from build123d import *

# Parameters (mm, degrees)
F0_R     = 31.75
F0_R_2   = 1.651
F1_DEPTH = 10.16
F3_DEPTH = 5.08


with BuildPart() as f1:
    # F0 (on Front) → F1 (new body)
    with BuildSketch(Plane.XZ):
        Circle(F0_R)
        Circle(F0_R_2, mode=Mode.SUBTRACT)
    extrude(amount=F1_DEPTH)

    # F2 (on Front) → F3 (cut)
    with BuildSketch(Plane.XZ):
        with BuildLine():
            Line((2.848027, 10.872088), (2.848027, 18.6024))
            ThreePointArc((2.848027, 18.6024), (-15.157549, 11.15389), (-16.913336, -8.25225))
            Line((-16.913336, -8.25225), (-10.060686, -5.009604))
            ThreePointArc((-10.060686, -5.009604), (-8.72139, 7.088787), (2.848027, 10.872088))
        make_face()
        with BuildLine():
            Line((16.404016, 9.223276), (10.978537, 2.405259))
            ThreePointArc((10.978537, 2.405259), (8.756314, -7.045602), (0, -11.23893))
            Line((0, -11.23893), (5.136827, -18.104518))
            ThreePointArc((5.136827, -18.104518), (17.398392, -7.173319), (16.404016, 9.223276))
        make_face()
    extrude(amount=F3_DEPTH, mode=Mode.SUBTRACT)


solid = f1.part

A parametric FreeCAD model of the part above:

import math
import FreeCAD as App
import Part
import Sketcher
Q = App.Units.Quantity

doc = App.newDocument("Part")
params = doc.addObject("Spreadsheet::Sheet", "Params")
for row, (alias, value) in enumerate([
    ("sketch1_diameter", "2.5 in"),
    ("sketch1_diameter2", "0.13 in"),
    ("pad1_length", "0.4 in"),
    ("pocket1_length", "0.2 in"),
], start=1):
    params.set(f"A{row}", alias)
    params.set(f"B{row}", "=" + value)
    params.setAlias(f"B{row}", alias)

body = doc.addObject("PartDesign::Body", "Body")

# Sketch on XZ plane
sketch1 = body.newObject("Sketcher::SketchObject", "Sketch")
sketch1.AttachmentSupport = (doc.getObject("XZ_Plane"), [""])
sketch1.MapMode = "FlatFace"
sketch1.addGeometry(Part.Circle(App.Vector(0, 0, 0), App.Vector(0, 0, 1), 31.8), False)
sketch1.addGeometry(Part.Circle(App.Vector(0, 0, 0), App.Vector(0, 0, 1), 1.7), False)
sketch1.addConstraint(Sketcher.Constraint("Coincident", 0, 3, -1, 1))
sketch1.addConstraint(Sketcher.Constraint("Coincident", 1, 3, -1, 1))
sketch1.addConstraint(Sketcher.Constraint("Diameter", 0, Q("2.5 in")))
sketch1.addConstraint(Sketcher.Constraint("Diameter", 1, Q("0.13 in")))
sketch1.setExpression("Constraints[2]", "Params.sketch1_diameter")
sketch1.setExpression("Constraints[3]", "Params.sketch1_diameter2")
pad1 = body.newObject("PartDesign::Pad", "Pad")
pad1.Profile = sketch1
pad1.setExpression("Length", "Params.pad1_length")

# Sketch on XZ plane
sketch2 = body.newObject("Sketcher::SketchObject", "Sketch001")
sketch2.AttachmentSupport = (doc.getObject("XZ_Plane"), [""])
sketch2.MapMode = "FlatFace"
sketch2.addGeometry(Part.LineSegment(App.Vector(3, 11, 0), App.Vector(3, 19, 0)), False)
sketch2.addGeometry(Part.ArcOfCircle(Part.Circle(App.Vector(0, 0, 0), App.Vector(0, 0, 1), 19), math.radians(81), math.radians(206)), False)
sketch2.addGeometry(Part.LineSegment(App.Vector(-17, -8, 0), App.Vector(-10, -5, 0)), False)
sketch2.addGeometry(Part.ArcOfCircle(Part.Circle(App.Vector(0, 0, 0), App.Vector(0, 0, 1), 11), math.radians(75), math.radians(206)), False)
sketch2.addGeometry(Part.LineSegment(App.Vector(16, 9, 0), App.Vector(11, 2, 0)), False)
sketch2.addGeometry(Part.ArcOfCircle(Part.Circle(App.Vector(0, 0, 0), App.Vector(0, 0, 1), 11), math.radians(-90), math.radians(12)), False)
sketch2.addGeometry(Part.LineSegment(App.Vector(0, -11, 0), App.Vector(5, -18, 0)), False)
sketch2.addGeometry(Part.ArcOfCircle(Part.Circle(App.Vector(0, 0, 0), App.Vector(0, 0, 1), 19), math.radians(-74), math.radians(29)), False)
sketch2.addConstraint(Sketcher.Constraint("Coincident", 0, 2, 1, 1))
sketch2.addConstraint(Sketcher.Constraint("Coincident", 1, 2, 2, 1))
sketch2.addConstraint(Sketcher.Constraint("Coincident", 2, 2, 3, 2))
sketch2.addConstraint(Sketcher.Constraint("Coincident", 3, 1, 0, 1))
sketch2.addConstraint(Sketcher.Constraint("Coincident", 4, 2, 5, 2))
sketch2.addConstraint(Sketcher.Constraint("Coincident", 5, 1, 6, 1))
sketch2.addConstraint(Sketcher.Constraint("Coincident", 6, 2, 7, 1))
sketch2.addConstraint(Sketcher.Constraint("Coincident", 7, 2, 4, 1))
sketch2.addConstraint(Sketcher.Constraint("Vertical", 0))
sketch2.addConstraint(Sketcher.Constraint("Coincident", 1, 3, -1, 1))
sketch2.addConstraint(Sketcher.Constraint("Coincident", 3, 3, -1, 1))
sketch2.addConstraint(Sketcher.Constraint("Coincident", 5, 3, -1, 1))
sketch2.addConstraint(Sketcher.Constraint("Coincident", 7, 3, -1, 1))
sketch2.addConstraint(Sketcher.Constraint("Equal", 3, 5))
sketch2.addConstraint(Sketcher.Constraint("Equal", 1, 7))
sketch2.addConstraint(Sketcher.Constraint("PointOnObject", 5, 1, -2))
sketch2.addConstraint(Sketcher.Constraint("Radius", 3, Q("11.23893 mm")))
sketch2.addConstraint(Sketcher.Constraint("Radius", 1, Q("18.819154 mm")))
sketch2.addConstraint(Sketcher.Constraint("DistanceY", 0, 1, 0, 2, Q("7.730312 mm")))
sketch2.addConstraint(Sketcher.Constraint("DistanceY", 1, 2, -1, 1, Q("8.25225 mm")))
sketch2.addConstraint(Sketcher.Constraint("DistanceY", -1, 1, 4, 2, Q("2.405259 mm")))
sketch2.addConstraint(Sketcher.Constraint("DistanceX", 1, 2, 2, 2, Q("6.85265 mm")))
sketch2.addConstraint(Sketcher.Constraint("DistanceY", 6, 2, 5, 1, Q("6.865588 mm")))
sketch2.addConstraint(Sketcher.Constraint("DistanceX", 4, 2, 7, 2, Q("5.425479 mm")))
pocket1 = body.newObject("PartDesign::Pocket", "Pocket")
pocket1.Profile = sketch2
pocket1.setExpression("Length", "Params.pocket1_length")
pocket1.Reversed = True

doc.recompute()
